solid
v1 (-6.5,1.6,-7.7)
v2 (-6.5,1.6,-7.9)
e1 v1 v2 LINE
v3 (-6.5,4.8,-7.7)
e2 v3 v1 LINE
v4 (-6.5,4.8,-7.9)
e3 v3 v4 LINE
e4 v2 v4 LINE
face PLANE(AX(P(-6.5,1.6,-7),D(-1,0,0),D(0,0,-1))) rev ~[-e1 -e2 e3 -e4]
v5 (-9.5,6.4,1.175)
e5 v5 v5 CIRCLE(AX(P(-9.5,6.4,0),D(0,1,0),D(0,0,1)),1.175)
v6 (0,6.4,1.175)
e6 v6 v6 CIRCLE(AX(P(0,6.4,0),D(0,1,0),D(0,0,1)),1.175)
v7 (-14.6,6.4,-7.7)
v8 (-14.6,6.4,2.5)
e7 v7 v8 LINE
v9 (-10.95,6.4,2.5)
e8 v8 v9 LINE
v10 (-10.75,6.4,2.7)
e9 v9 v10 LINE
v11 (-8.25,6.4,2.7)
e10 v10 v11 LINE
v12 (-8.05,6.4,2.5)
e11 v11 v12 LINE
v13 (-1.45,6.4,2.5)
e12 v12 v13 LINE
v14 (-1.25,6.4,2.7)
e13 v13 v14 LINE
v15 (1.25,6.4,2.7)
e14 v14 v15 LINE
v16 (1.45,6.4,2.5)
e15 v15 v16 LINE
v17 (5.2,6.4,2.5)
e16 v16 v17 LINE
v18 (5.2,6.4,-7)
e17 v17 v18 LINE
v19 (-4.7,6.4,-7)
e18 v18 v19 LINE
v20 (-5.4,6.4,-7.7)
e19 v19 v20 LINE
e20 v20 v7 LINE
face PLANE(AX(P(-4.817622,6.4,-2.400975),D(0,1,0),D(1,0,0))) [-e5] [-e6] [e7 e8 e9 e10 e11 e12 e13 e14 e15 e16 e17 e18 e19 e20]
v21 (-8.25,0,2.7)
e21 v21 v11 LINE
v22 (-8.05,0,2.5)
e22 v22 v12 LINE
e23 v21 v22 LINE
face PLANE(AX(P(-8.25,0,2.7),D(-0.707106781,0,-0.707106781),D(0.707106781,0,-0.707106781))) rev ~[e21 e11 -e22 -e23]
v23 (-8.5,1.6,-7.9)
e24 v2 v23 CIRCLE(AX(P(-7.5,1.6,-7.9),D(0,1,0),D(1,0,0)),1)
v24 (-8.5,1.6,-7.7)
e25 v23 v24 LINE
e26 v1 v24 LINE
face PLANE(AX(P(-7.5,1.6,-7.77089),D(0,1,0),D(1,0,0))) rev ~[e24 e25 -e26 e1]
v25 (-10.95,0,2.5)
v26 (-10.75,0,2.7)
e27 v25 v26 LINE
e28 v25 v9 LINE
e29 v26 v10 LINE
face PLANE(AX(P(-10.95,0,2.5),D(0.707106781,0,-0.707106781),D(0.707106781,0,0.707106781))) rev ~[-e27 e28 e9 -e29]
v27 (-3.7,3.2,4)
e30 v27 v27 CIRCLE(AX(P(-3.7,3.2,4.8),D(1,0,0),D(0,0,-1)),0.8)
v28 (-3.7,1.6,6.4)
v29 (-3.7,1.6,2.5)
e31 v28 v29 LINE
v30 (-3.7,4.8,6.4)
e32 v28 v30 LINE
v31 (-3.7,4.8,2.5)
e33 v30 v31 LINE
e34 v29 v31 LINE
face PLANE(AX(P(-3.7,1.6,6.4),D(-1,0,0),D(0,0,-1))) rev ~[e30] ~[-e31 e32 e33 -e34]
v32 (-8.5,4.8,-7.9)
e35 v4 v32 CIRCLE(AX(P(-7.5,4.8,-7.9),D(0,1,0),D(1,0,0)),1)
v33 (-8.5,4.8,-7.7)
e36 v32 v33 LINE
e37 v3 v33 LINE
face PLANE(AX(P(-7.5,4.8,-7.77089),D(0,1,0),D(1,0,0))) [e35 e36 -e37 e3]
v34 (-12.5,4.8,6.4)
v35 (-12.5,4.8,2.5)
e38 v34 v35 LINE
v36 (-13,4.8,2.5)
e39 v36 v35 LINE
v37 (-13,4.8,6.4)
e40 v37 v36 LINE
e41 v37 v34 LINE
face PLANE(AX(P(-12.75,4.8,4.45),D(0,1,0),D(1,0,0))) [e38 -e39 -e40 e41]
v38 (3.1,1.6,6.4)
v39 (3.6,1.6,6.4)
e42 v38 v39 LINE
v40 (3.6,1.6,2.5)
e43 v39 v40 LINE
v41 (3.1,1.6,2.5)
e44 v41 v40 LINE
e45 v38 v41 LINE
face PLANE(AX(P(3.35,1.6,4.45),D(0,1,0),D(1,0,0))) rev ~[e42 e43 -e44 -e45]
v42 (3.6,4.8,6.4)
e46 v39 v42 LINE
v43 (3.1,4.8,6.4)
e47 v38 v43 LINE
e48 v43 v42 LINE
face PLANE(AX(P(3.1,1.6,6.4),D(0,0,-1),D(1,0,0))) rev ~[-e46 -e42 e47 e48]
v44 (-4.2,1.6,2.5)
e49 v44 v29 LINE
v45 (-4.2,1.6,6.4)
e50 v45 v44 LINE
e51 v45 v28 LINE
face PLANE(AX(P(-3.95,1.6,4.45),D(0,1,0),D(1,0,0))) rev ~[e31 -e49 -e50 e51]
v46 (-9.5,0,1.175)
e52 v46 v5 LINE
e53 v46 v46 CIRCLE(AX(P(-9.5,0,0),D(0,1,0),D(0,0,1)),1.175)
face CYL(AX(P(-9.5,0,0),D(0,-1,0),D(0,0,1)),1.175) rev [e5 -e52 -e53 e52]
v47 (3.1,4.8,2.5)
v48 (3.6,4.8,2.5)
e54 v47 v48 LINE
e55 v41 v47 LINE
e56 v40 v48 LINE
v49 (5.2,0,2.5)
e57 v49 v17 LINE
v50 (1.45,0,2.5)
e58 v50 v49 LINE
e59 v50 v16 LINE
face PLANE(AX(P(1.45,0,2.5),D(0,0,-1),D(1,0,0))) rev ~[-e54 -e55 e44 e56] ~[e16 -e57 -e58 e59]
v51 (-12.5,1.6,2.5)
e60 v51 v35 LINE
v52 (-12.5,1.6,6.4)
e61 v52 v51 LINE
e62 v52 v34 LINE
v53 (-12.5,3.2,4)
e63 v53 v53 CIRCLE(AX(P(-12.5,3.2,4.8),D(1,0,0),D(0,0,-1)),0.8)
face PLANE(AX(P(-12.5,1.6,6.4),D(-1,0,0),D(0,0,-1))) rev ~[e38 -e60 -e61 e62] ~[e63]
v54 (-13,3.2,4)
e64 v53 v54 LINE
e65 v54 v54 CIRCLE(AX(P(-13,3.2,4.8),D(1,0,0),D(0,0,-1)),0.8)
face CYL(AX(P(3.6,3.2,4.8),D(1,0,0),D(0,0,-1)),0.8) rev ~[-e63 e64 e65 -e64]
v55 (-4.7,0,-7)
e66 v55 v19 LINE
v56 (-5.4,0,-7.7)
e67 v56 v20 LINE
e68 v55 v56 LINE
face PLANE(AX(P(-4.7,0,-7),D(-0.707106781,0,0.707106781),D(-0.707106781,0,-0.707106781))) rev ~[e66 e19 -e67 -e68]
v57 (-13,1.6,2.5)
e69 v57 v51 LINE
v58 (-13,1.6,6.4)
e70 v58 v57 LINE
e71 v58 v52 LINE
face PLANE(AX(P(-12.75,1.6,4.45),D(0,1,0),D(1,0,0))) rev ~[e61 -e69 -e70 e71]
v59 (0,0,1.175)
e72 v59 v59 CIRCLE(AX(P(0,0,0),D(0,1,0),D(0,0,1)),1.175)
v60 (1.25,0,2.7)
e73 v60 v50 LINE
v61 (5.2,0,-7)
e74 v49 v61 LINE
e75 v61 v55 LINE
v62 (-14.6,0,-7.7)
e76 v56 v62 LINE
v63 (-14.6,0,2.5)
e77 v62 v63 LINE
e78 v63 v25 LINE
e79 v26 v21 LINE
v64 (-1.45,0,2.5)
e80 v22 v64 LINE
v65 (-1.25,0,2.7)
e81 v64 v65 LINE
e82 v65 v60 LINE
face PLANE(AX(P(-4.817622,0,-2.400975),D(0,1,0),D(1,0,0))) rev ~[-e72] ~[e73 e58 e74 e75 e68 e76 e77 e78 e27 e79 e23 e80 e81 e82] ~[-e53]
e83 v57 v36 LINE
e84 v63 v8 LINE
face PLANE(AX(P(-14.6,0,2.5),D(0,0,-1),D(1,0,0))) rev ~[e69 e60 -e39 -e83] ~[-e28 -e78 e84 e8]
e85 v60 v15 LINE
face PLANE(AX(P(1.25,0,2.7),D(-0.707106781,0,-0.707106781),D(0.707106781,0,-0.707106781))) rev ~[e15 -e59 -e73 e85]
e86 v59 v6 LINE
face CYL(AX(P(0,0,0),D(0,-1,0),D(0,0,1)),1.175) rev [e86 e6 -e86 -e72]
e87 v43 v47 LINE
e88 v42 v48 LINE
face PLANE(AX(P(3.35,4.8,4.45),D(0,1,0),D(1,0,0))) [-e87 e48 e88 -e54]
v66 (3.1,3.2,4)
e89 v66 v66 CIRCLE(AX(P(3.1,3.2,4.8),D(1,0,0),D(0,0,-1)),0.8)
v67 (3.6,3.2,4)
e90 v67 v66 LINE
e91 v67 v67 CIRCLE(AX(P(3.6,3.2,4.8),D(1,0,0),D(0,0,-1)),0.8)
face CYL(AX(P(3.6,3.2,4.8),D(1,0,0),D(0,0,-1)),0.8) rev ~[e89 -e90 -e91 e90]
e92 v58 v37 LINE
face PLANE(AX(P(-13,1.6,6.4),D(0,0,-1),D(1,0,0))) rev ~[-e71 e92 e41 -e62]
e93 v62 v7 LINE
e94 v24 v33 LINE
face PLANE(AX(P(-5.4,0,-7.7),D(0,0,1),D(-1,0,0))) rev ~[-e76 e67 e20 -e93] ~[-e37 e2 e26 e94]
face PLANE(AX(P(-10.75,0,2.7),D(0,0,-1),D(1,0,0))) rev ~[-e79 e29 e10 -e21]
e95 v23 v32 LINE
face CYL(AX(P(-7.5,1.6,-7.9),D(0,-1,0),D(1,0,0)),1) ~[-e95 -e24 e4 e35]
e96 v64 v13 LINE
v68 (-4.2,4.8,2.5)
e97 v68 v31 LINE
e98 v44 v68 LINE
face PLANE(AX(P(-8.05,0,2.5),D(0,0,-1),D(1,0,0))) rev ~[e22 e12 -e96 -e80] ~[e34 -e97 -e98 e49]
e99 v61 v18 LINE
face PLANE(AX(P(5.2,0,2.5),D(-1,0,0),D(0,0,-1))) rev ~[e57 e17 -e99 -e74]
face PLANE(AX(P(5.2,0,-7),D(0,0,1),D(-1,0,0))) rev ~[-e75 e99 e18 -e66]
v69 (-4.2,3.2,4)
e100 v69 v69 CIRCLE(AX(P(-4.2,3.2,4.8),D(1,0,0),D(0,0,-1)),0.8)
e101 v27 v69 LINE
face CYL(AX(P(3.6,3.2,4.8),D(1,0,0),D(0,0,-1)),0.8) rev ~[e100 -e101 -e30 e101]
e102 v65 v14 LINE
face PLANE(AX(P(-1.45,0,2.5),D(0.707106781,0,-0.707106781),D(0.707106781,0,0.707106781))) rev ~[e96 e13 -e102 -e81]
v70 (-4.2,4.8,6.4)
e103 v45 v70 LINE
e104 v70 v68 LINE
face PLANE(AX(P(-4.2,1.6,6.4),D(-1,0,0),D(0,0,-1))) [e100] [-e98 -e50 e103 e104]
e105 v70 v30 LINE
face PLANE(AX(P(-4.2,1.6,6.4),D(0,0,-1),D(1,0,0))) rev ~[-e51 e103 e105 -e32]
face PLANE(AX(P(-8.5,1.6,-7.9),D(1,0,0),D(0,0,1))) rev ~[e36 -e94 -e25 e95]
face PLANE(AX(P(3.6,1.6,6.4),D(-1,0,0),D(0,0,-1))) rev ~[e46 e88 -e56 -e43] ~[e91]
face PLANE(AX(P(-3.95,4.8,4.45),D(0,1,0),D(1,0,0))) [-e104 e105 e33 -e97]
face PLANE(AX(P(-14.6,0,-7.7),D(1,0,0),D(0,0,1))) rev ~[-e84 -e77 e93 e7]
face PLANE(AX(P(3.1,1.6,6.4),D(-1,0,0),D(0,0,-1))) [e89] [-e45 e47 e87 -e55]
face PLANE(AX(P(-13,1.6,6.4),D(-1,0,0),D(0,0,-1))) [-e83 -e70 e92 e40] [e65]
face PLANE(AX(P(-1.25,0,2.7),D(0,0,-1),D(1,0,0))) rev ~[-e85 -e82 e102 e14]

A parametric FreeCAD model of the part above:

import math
import FreeCAD as App
import Part
import Sketcher
Q = App.Units.Quantity

doc = App.newDocument("Part")
body = doc.addObject("PartDesign::Body", "Body")

# Sketch on XZ plane
sketch1 = doc.addObject("Sketcher::SketchObject", "Sketch")
body.addObject(sketch1)
sketch1.AttachmentSupport = (doc.XZ_Plane, [""])
sketch1.MapMode = "FlatFace"
sketch1.addGeometry([
    Part.LineSegment(App.Vector(-10.95, 2.5, 0), App.Vector(-10.75, 2.7, 0)),  # 0
    Part.LineSegment(App.Vector(-10.75, 2.7, 0), App.Vector(-8.25, 2.7, 0)),  # 1
    Part.LineSegment(App.Vector(-8.25, 2.7, 0), App.Vector(-8.05, 2.5, 0)),  # 2
    Part.LineSegment(App.Vector(-8.05, 2.5, 0), App.Vector(-1.45, 2.5, 0)),  # 3
    Part.LineSegment(App.Vector(-1.45, 2.5, 0), App.Vector(-1.25, 2.7, 0)),  # 4
    Part.LineSegment(App.Vector(-1.25, 2.7, 0), App.Vector(1.25, 2.7, 0)),  # 5
    Part.LineSegment(App.Vector(1.25, 2.7, 0), App.Vector(1.45, 2.5, 0)),  # 6
    Part.LineSegment(App.Vector(1.45, 2.5, 0), App.Vector(5.2, 2.5, 0)),  # 7
    Part.LineSegment(App.Vector(5.2, 2.5, 0), App.Vector(5.2, -7, 0)),  # 8
    Part.LineSegment(App.Vector(5.2, -7, 0), App.Vector(-4.7, -7, 0)),  # 9
    Part.LineSegment(App.Vector(-4.7, -7, 0), App.Vector(-5.4, -7.7, 0)),  # 10
    Part.LineSegment(App.Vector(-5.4, -7.7, 0), App.Vector(-14.6, -7.7, 0)),  # 11
    Part.LineSegment(App.Vector(-14.6, -7.7, 0), App.Vector(-14.6, 2.5, 0)),  # 12
    Part.LineSegment(App.Vector(-14.6, 2.5, 0), App.Vector(-10.95, 2.5, 0)),  # 13
    Part.Circle(App.Vector(-9.5, 0, 0), App.Vector(0, 0, 1), 1.18),  # 14
    Part.Circle(App.Vector(0, 0, 0), App.Vector(0, 0, 1), 1.18),  # 15
], False)
sketch1.addConstraint([
    Sketcher.Constraint("Coincident", 0, 2, 1, 1),
    Sketcher.Constraint("Coincident", 1, 2, 2, 1),
    Sketcher.Constraint("Coincident", 2, 2, 3, 1),
    Sketcher.Constraint("Coincident", 3, 2, 4, 1),
    Sketcher.Constraint("Coincident", 4, 2, 5, 1),
    Sketcher.Constraint("Coincident", 5, 2, 6, 1),
    Sketcher.Constraint("Coincident", 6, 2, 7, 1),
    Sketcher.Constraint("Coincident", 7, 2, 8, 1),
    Sketcher.Constraint("Coincident", 8, 2, 9, 1),
    Sketcher.Constraint("Coincident", 9, 2, 10, 1),
    Sketcher.Constraint("Coincident", 10, 2, 11, 1),
    Sketcher.Constraint("Coincident", 11, 2, 12, 1),
    Sketcher.Constraint("Coincident", 12, 2, 13, 1),
    Sketcher.Constraint("Coincident", 13, 2, 0, 1),
    Sketcher.Constraint("Horizontal", 1),
    Sketcher.Constraint("Horizontal", 3),
    Sketcher.Constraint("Horizontal", 5),
    Sketcher.Constraint("Horizontal", 7),
    Sketcher.Constraint("Vertical", 8),
    Sketcher.Constraint("Horizontal", 9),
    Sketcher.Constraint("Horizontal", 11),
    Sketcher.Constraint("Vertical", 12),
    Sketcher.Constraint("Horizontal", 13),
    Sketcher.Constraint("Coincident", 15, 3, -1, 1),
    Sketcher.Constraint("Equal", 14, 15),
    Sketcher.Constraint("Symmetric", 3, 2, 6, 2, -2),
    Sketcher.Constraint("PointOnObject", 14, 3, -1),
    Sketcher.Constraint("Perpendicular", 0, 2),
    Sketcher.Constraint("Perpendicular", 2, 4),
    Sketcher.Constraint("Perpendicular", 4, 6),
    Sketcher.Constraint("Perpendicular", 6, 10),
    Sketcher.Constraint("Horizontal", 1, 2, 4, 2),
    Sketcher.Constraint("Horizontal", 7, 2, 12, 2),
    Sketcher.Constraint("Equal", 1, 5),
    Sketcher.Constraint("Equal", 0, 2),
    Sketcher.Constraint("Diameter", 14, Q("2.35 mm")),
    Sketcher.Constraint("DistanceX", 1, 1, 1, 2, Q("2.5 mm")),
    Sketcher.Constraint("DistanceX", 3, 1, 3, 2, Q("6.6 mm")),
    Sketcher.Constraint("DistanceX", 9, 2, 9, 1, Q("9.9 mm")),
    Sketcher.Constraint("DistanceX", 11, 2, 11, 1, Q("9.2 mm")),
    Sketcher.Constraint("DistanceY", 8, 2, 8, 1, Q("9.5 mm")),
    Sketcher.Constraint("DistanceY", 12, 1, 12, 2, Q("10.2 mm")),
    Sketcher.Constraint("DistanceY", 8, 2, -1, 1, Q("7 mm")),
    Sketcher.Constraint("DistanceX", 1, 2, 4, 2, Q("7 mm")),
    Sketcher.Constraint("DistanceX", 7, 1, 7, 2, Q("3.75 mm")),
    Sketcher.Constraint("DistanceX", 14, 3, -1, 1, Q("9.5 mm")),
])
pad1 = doc.addObject("PartDesign::Pad", "Pad")
body.addObject(pad1)
pad1.Profile = sketch1
pad1.Length = 6.4
pad1.Reversed = True

# Sketch on XZ plane
sketch2 = doc.addObject("Sketcher::SketchObject", "Sketch001")
body.addObject(sketch2)
sketch2.AttachmentSupport = (doc.XZ_Plane, [""])
sketch2.MapMode = "FlatFace"
sketch2.AttachmentOffset = App.Placement(App.Vector(0, 0, -1.6), App.Rotation())
sketch2.addGeometry([
    Part.LineSegment(App.Vector(-8.5, -7, 0), App.Vector(-6.5, -7, 0)),
    Part.LineSegment(App.Vector(-6.5, -7, 0), App.Vector(-6.5, -7.9, 0)),
    Part.ArcOfCircle(Part.Circle(App.Vector(-7.5, -7.9, 0), App.Vector(0, 0, 1), 1), math.radians(180), math.radians(360)),
    Part.LineSegment(App.Vector(-8.5, -7.9, 0), App.Vector(-8.5, -7, 0)),
], False)
sketch2.addConstraint([
    Sketcher.Constraint("Coincident", 0, 2, 1, 1),
    Sketcher.Constraint("Tangent", 1, 2, 2, 2),
    Sketcher.Constraint("Tangent", 2, 1, 3, 1),
    Sketcher.Constraint("Coincident", 3, 2, 0, 1),
    Sketcher.Constraint("Horizontal", 0),
    Sketcher.Constraint("Vertical", 1),
    Sketcher.Constraint("Vertical", 3),
    Sketcher.Constraint("Radius", 2, Q("1 mm")),
    Sketcher.Constraint("DistanceY", 1, 2, 1, 1, Q("0.9 mm")),
    Sketcher.Constraint("DistanceY", 0, 2, -1, 1, Q("7 mm")),
    Sketcher.Constraint("DistanceX", 2, 3, -1, 1, Q("7.5 mm")),
])
pad2 = doc.addObject("PartDesign::Pad", "Pad001")
body.addObject(pad2)
pad2.Profile = sketch2
pad2.Length = 3.2
pad2.Reversed = True

# Sketch on XZ plane
sketch3 = doc.addObject("Sketcher::SketchObject", "Sketch002")
body.addObject(sketch3)
sketch3.AttachmentSupport = (doc.XZ_Plane, [""])
sketch3.MapMode = "FlatFace"
sketch3.AttachmentOffset = App.Placement(App.Vector(0, 0, -1.6), App.Rotation())
sketch3.addGeometry([
    Part.LineSegment(App.Vector(-13, 2.5, 0), App.Vector(-13, 6.4, 0)),  # 0
    Part.LineSegment(App.Vector(-13, 6.4, 0), App.Vector(-12.5, 6.4, 0)),  # 1
    Part.LineSegment(App.Vector(-12.5, 6.4, 0), App.Vector(-12.5, 2.5, 0)),  # 2
    Part.LineSegment(App.Vector(-12.5, 2.5, 0), App.Vector(-13, 2.5, 0)),  # 3
    Part.LineSegment(App.Vector(-4.2, 2.5, 0), App.Vector(-4.2, 6.4, 0)),  # 4
    Part.LineSegment(App.Vector(-4.2, 6.4, 0), App.Vector(-3.7, 6.4, 0)),  # 5
    Part.LineSegment(App.Vector(-3.7, 6.4, 0), App.Vector(-3.7, 2.5, 0)),  # 6
    Part.LineSegment(App.Vector(-3.7, 2.5, 0), App.Vector(-4.2, 2.5, 0)),  # 7
    Part.LineSegment(App.Vector(3.1, 2.5, 0), App.Vector(3.1, 6.4, 0)),  # 8
    Part.LineSegment(App.Vector(3.1, 6.4, 0), App.Vector(3.6, 6.4, 0)),  # 9
    Part.LineSegment(App.Vector(3.6, 6.4, 0), App.Vector(3.6, 2.5, 0)),  # 10
    Part.LineSegment(App.Vector(3.6, 2.5, 0), App.Vector(3.1, 2.5, 0)),  # 11
], False)
sketch3.addConstraint([
    Sketcher.Constraint("Coincident", 0, 2, 1, 1),
    Sketcher.Constraint("Coincident", 1, 2, 2, 1),
    Sketcher.Constraint("Coincident", 2, 2, 3, 1),
    Sketcher.Constraint("Coincident", 3, 2, 0, 1),
    Sketcher.Constraint("Coincident", 4, 2, 5, 1),
    Sketcher.Constraint("Coincident", 5, 2, 6, 1),
    Sketcher.Constraint("Coincident", 6, 2, 7, 1),
    Sketcher.Constraint("Coincident", 7, 2, 4, 1),
    Sketcher.Constraint("Coincident", 8, 2, 9, 1),
    Sketcher.Constraint("Coincident", 9, 2, 10, 1),
    Sketcher.Constraint("Coincident", 10, 2, 11, 1),
    Sketcher.Constraint("Coincident", 11, 2, 8, 1),
    Sketcher.Constraint("Vertical", 0),
    Sketcher.Constraint("Horizontal", 1),
    Sketcher.Constraint("Vertical", 2),
    Sketcher.Constraint("Horizontal", 3),
    Sketcher.Constraint("Vertical", 4),
    Sketcher.Constraint("Horizontal", 5),
    Sketcher.Constraint("Vertical", 6),
    Sketcher.Constraint("Horizontal", 7),
    Sketcher.Constraint("Vertical", 8),
    Sketcher.Constraint("Horizontal", 9),
    Sketcher.Constraint("Vertical", 10),
    Sketcher.Constraint("Horizontal", 11),
    Sketcher.Constraint("Horizontal", 1, 2, 4, 2),
    Sketcher.Constraint("Horizontal", 3, 2, 6, 2),
    Sketcher.Constraint("Horizontal", 5, 2, 8, 2),
    Sketcher.Constraint("Horizontal", 7, 2, 10, 2),
    Sketcher.Constraint("Equal", 3, 5),
    Sketcher.Constraint("Equal", 7, 9),
    Sketcher.Constraint("DistanceX", 1, 1, 1, 2, Q("0.5 mm")),
    Sketcher.Constraint("DistanceY", 0, 1, 0, 2, Q("3.9 mm")),
    Sketcher.Constraint("DistanceX", 0, 2, -1, 1, Q("13 mm")),
    Sketcher.Constraint("DistanceY", -1, 1, 0, 2, Q("6.4 mm")),
    Sketcher.Constraint("DistanceX", 4, 2, -1, 1, Q("4.2 mm")),
    Sketcher.Constraint("DistanceX", -1, 1, 8, 2, Q("3.1 mm")),
])
pad3 = doc.addObject("PartDesign::Pad", "Pad002")
body.addObject(pad3)
pad3.Profile = sketch3
pad3.Length = 3.2
pad3.Reversed = True

# Sketch on YZ plane
sketch4 = doc.addObject("Sketcher::SketchObject", "Sketch003")
body.addObject(sketch4)
sketch4.AttachmentSupport = (doc.YZ_Plane, [""])
sketch4.MapMode = "FlatFace"
sketch4.AttachmentOffset = App.Placement(App.Vector(0, 0, 3.6), App.Rotation())
sketch4.addGeometry(Part.Circle(App.Vector(3.2, 4.8, 0), App.Vector(0, 0, 1), 0.8), False)
sketch4.addConstraint([
    Sketcher.Constraint("Diameter", 0, Q("1.6 mm")),
    Sketcher.Constraint("DistanceX", -1, 1, 0, 3, Q("3.2 mm")),
    Sketcher.Constraint("DistanceY", -1, 1, 0, 3, Q("4.8 mm")),
])
pocket1 = doc.addObject("PartDesign::Pocket", "Pocket")
body.addObject(pocket1)
pocket1.Profile = sketch4
pocket1.Type = "ThroughAll"

doc.recompute()
